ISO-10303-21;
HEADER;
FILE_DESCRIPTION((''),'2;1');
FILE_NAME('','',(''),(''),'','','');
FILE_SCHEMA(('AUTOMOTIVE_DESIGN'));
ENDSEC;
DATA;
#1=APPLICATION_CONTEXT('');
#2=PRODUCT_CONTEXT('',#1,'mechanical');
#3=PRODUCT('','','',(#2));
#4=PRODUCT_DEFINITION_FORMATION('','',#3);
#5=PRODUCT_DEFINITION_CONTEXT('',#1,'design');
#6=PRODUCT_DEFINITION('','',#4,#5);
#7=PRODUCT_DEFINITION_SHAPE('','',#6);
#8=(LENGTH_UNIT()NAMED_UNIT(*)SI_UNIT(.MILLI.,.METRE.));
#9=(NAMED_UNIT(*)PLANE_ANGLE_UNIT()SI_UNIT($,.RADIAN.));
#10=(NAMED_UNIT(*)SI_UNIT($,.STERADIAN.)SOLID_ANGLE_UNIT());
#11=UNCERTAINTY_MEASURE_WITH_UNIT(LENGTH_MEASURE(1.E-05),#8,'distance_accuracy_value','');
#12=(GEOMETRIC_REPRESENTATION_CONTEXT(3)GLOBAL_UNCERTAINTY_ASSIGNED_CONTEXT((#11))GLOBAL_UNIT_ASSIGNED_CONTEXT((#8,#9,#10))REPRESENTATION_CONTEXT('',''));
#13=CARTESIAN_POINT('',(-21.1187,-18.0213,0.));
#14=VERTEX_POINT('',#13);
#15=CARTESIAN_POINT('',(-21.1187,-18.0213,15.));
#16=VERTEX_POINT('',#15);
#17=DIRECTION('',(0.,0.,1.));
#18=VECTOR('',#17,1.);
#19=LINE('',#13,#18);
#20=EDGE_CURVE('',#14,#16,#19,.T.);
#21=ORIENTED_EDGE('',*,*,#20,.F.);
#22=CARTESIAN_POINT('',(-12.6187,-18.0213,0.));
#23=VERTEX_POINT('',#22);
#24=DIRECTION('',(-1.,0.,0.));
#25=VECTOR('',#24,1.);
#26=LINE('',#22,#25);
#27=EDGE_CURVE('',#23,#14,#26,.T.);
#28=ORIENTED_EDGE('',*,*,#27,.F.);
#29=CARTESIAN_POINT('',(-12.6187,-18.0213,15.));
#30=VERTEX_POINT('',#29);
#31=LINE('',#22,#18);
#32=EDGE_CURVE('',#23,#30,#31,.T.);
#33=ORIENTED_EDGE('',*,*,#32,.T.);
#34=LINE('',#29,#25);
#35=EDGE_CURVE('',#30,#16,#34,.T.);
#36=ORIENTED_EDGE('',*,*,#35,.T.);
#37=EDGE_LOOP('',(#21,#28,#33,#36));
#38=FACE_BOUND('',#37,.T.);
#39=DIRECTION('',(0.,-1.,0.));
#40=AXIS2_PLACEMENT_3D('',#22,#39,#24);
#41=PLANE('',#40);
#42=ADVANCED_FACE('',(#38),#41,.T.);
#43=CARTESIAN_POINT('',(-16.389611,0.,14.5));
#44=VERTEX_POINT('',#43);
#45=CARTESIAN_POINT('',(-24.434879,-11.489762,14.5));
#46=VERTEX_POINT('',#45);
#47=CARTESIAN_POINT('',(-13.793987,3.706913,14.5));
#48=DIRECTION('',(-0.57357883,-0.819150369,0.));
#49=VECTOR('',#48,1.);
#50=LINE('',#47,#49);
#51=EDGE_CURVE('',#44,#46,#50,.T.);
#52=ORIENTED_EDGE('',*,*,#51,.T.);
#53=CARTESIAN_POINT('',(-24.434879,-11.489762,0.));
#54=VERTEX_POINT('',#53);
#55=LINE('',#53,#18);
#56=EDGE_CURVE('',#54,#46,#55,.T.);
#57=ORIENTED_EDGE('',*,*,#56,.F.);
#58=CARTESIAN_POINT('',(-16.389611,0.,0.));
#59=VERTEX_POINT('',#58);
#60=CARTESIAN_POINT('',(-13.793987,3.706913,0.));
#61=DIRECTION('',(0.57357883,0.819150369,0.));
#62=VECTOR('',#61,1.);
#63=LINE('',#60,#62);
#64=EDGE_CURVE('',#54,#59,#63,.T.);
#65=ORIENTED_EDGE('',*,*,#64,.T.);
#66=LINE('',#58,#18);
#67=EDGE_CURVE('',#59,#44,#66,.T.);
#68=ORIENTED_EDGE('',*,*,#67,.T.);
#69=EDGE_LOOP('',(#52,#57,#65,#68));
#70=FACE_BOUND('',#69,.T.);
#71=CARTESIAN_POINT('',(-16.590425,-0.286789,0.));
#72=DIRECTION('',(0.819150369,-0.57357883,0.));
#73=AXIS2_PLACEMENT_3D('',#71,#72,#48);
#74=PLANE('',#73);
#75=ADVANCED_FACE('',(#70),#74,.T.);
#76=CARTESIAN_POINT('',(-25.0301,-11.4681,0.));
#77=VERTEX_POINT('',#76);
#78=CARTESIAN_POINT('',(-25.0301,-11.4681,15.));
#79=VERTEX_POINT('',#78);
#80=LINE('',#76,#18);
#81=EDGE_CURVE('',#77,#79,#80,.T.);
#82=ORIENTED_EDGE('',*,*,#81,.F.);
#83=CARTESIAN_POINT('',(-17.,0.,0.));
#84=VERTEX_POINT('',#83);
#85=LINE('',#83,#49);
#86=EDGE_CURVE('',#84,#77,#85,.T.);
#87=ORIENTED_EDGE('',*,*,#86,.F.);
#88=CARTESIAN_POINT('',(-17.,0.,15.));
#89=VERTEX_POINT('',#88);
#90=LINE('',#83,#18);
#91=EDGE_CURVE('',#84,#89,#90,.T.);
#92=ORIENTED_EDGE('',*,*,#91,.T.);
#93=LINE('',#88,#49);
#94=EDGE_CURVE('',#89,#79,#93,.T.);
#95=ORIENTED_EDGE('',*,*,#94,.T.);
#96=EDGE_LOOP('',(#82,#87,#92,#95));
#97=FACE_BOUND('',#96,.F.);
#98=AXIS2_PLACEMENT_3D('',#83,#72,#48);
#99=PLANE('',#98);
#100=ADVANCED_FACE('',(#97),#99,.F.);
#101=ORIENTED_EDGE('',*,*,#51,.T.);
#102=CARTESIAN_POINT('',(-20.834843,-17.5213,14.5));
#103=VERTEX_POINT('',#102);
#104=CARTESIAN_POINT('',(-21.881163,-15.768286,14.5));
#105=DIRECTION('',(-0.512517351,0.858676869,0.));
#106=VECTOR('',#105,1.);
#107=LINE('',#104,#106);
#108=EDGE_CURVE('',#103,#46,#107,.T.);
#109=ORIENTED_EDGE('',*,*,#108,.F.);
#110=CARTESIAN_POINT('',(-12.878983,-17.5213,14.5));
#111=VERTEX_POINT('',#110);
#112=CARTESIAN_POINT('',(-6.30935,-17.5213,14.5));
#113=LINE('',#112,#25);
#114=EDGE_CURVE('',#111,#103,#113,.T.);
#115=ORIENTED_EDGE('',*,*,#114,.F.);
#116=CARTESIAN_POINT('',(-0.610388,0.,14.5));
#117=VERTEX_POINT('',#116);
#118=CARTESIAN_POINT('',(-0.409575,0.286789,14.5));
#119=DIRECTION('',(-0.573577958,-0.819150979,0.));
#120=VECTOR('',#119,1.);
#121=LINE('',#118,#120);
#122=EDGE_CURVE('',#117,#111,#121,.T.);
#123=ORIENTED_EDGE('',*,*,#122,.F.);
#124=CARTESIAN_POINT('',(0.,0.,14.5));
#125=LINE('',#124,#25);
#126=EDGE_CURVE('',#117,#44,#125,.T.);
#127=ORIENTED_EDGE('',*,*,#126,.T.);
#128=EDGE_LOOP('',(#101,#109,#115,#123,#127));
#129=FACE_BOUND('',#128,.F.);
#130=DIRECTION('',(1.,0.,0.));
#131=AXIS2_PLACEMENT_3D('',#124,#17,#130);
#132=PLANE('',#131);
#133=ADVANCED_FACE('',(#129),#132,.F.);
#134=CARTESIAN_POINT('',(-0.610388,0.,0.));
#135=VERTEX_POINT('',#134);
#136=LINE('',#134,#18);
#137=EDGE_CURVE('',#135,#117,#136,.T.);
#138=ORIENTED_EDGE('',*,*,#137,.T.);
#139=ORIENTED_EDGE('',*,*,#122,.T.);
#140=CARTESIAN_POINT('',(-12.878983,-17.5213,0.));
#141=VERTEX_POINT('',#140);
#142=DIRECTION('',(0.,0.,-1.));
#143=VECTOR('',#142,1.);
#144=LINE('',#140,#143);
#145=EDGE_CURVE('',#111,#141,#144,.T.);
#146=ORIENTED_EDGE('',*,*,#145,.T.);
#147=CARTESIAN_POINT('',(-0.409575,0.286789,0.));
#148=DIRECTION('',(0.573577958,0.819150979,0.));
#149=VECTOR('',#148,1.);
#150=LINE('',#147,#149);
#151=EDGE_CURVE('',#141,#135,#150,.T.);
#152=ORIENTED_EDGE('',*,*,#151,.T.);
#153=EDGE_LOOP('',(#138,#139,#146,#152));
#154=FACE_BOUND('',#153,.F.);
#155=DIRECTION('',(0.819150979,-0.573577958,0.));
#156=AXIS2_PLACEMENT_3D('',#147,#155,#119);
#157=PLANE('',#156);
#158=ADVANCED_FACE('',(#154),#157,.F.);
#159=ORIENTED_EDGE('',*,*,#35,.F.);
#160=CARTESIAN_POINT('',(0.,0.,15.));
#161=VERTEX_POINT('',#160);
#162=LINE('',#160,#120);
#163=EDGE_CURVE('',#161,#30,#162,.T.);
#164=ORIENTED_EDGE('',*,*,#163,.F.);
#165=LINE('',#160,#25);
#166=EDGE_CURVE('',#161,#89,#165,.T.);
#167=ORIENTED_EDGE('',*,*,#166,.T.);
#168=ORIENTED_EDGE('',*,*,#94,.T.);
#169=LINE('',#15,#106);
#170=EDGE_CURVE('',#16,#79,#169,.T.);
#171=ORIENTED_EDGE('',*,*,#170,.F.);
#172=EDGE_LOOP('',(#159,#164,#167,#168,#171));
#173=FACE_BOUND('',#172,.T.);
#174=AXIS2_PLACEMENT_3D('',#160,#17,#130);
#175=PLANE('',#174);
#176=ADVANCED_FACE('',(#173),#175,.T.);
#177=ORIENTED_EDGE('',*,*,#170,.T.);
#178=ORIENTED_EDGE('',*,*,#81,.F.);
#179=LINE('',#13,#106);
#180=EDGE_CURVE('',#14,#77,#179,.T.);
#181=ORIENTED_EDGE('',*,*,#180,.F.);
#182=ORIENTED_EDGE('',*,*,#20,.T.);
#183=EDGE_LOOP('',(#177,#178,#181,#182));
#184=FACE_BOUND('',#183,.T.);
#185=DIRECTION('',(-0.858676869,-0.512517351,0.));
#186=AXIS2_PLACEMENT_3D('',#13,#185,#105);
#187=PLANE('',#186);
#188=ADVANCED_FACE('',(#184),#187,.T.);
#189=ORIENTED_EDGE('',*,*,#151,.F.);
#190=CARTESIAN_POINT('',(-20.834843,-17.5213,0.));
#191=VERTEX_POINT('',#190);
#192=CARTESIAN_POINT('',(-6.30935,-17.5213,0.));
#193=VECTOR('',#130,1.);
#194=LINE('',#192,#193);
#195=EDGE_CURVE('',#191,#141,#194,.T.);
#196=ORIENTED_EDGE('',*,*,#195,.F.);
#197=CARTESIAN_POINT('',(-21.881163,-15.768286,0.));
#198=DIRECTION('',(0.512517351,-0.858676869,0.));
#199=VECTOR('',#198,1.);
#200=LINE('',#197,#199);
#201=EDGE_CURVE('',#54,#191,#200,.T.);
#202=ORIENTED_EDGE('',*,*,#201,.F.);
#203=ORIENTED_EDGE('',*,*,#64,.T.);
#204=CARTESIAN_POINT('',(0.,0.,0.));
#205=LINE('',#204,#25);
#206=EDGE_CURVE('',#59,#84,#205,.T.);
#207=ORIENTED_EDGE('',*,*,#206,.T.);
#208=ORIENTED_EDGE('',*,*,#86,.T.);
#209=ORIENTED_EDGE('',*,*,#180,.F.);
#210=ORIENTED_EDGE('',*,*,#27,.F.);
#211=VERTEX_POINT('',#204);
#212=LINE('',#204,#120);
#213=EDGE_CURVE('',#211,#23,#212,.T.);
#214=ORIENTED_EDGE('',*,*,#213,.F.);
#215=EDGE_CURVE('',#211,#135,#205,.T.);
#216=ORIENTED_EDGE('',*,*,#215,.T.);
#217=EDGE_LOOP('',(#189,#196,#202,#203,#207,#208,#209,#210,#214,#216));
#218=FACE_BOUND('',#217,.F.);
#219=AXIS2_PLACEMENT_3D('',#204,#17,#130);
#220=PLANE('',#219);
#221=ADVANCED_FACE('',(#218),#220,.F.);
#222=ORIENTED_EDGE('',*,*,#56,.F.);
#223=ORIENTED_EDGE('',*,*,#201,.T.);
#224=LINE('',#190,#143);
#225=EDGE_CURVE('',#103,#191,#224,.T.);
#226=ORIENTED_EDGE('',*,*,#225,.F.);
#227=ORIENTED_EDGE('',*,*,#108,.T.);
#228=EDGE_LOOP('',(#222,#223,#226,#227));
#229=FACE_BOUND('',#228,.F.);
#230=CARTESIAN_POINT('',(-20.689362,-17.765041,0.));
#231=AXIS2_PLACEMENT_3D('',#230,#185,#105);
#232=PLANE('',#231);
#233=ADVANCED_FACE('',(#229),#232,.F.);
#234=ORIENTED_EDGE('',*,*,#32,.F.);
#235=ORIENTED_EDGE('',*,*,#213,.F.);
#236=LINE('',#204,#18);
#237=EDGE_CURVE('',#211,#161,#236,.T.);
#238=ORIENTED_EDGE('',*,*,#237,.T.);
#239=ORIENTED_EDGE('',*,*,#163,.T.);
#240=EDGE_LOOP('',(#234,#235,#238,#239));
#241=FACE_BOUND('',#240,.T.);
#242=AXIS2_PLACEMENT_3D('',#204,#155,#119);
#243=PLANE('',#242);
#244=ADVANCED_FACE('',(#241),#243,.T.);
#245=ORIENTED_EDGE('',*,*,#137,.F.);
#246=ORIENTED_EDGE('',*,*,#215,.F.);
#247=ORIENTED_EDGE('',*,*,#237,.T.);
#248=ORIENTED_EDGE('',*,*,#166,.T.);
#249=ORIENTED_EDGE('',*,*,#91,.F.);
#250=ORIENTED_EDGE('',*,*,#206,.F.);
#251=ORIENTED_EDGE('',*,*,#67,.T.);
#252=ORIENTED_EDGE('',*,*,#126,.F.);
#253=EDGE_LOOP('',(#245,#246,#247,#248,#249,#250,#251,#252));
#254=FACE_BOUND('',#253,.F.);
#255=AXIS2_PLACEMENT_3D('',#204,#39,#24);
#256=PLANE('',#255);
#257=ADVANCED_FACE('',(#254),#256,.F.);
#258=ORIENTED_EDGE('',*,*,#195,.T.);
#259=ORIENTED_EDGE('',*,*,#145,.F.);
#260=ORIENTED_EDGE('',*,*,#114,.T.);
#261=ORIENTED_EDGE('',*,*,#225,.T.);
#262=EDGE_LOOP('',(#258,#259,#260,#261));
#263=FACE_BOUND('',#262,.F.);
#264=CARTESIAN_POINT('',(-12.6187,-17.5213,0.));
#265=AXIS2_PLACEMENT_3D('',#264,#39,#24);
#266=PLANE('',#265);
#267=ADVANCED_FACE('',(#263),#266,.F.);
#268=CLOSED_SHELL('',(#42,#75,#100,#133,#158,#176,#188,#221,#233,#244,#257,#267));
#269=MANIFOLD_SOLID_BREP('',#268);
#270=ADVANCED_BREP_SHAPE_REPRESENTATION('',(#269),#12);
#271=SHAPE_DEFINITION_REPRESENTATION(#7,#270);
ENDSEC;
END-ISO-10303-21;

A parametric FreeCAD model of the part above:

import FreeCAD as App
import Part
import Sketcher
Q = App.Units.Quantity


def faces_at(feature, points):
    """Names of the faces that lie closest to the given points."""
    faces = feature.Shape.Faces
    near = lambda p: min(range(len(faces)), key=lambda i: faces[i].distToShape(Part.Vertex(*p))[0])
    return sorted({f"Face{near(p) + 1}" for p in points})

doc = App.newDocument("Part")
params = doc.addObject("Spreadsheet::Sheet", "Params")
for row, (alias, value) in enumerate([
    ("sketch1_width", "17 mm"),
    ("sketch1_length", "22 mm"),
    ("sketch1_length2", "14 mm"),
    ("sketch1_width2", "8.5 mm"),
    ("pad1_length", "15 mm"),
    ("thickness_wall", "0.5 mm"),
], start=1):
    params.set(f"A{row}", alias)
    params.set(f"B{row}", "=" + value)
    params.setAlias(f"B{row}", alias)

body = doc.addObject("PartDesign::Body", "Body")

# Sketch on XY plane
sketch1 = body.newObject("Sketcher::SketchObject", "Sketch")
sketch1.AttachmentSupport = (doc.getObject("XY_Plane"), [""])
sketch1.MapMode = "FlatFace"
sketch1.addGeometry(Part.LineSegment(App.Vector(-12.6187, -18.0213, 0), App.Vector(0, 0, 0)), False)
sketch1.addGeometry(Part.LineSegment(App.Vector(0, 0, 0), App.Vector(-17, 0, 0)), False)
sketch1.addGeometry(Part.LineSegment(App.Vector(-17, 0, 0), App.Vector(-25.0301, -11.4681, 0)), False)
sketch1.addGeometry(Part.LineSegment(App.Vector(-25.0301, -11.4681, 0), App.Vector(-21.1187, -18.0213, 0)), False)
sketch1.addGeometry(Part.LineSegment(App.Vector(-21.1187, -18.0213, 0), App.Vector(-12.6187, -18.0213, 0)), False)
sketch1.addConstraint(Sketcher.Constraint("Coincident", 0, 2, 1, 1))
sketch1.addConstraint(Sketcher.Constraint("Coincident", 1, 2, 2, 1))
sketch1.addConstraint(Sketcher.Constraint("Coincident", 2, 2, 3, 1))
sketch1.addConstraint(Sketcher.Constraint("Coincident", 3, 2, 4, 1))
sketch1.addConstraint(Sketcher.Constraint("Coincident", 4, 2, 0, 1))
sketch1.addConstraint(Sketcher.Constraint("Horizontal", 1))
sketch1.addConstraint(Sketcher.Constraint("Horizontal", 4))
sketch1.addConstraint(Sketcher.Constraint("Coincident", 0, 2, -1, 1))
sketch1.addConstraint(Sketcher.Constraint("Parallel", 0, 2))
sketch1.addConstraint(Sketcher.Constraint("DistanceX", 1, 2, 1, 1, Q("17 mm")))
sketch1.addConstraint(Sketcher.Constraint("Angle", 2, Q("-125.0002 deg")))
sketch1.addConstraint(Sketcher.Constraint("Distance", 0, Q("22 mm")))
sketch1.addConstraint(Sketcher.Constraint("Distance", 2, Q("14 mm")))
sketch1.addConstraint(Sketcher.Constraint("DistanceX", 4, 1, 4, 2, Q("8.5 mm")))
sketch1.setExpression("Constraints[9]", "Params.sketch1_width")
sketch1.setExpression("Constraints[11]", "Params.sketch1_length")
sketch1.setExpression("Constraints[12]", "Params.sketch1_length2")
sketch1.setExpression("Constraints[13]", "Params.sketch1_width2")
pad1 = body.newObject("PartDesign::Pad", "Pad")
pad1.Profile = sketch1
pad1.setExpression("Length", "Params.pad1_length")
doc.recompute()

thickness = body.newObject("PartDesign::Thickness", "Thickness")
thickness.Base = (pad1, faces_at(pad1, [(-5.667, 0, 5), (-9.873, -6.007, 0)]))
thickness.setExpression("Value", "Params.thickness_wall")
thickness.Reversed = True
thickness.Join = "Intersection"

doc.recompute()
